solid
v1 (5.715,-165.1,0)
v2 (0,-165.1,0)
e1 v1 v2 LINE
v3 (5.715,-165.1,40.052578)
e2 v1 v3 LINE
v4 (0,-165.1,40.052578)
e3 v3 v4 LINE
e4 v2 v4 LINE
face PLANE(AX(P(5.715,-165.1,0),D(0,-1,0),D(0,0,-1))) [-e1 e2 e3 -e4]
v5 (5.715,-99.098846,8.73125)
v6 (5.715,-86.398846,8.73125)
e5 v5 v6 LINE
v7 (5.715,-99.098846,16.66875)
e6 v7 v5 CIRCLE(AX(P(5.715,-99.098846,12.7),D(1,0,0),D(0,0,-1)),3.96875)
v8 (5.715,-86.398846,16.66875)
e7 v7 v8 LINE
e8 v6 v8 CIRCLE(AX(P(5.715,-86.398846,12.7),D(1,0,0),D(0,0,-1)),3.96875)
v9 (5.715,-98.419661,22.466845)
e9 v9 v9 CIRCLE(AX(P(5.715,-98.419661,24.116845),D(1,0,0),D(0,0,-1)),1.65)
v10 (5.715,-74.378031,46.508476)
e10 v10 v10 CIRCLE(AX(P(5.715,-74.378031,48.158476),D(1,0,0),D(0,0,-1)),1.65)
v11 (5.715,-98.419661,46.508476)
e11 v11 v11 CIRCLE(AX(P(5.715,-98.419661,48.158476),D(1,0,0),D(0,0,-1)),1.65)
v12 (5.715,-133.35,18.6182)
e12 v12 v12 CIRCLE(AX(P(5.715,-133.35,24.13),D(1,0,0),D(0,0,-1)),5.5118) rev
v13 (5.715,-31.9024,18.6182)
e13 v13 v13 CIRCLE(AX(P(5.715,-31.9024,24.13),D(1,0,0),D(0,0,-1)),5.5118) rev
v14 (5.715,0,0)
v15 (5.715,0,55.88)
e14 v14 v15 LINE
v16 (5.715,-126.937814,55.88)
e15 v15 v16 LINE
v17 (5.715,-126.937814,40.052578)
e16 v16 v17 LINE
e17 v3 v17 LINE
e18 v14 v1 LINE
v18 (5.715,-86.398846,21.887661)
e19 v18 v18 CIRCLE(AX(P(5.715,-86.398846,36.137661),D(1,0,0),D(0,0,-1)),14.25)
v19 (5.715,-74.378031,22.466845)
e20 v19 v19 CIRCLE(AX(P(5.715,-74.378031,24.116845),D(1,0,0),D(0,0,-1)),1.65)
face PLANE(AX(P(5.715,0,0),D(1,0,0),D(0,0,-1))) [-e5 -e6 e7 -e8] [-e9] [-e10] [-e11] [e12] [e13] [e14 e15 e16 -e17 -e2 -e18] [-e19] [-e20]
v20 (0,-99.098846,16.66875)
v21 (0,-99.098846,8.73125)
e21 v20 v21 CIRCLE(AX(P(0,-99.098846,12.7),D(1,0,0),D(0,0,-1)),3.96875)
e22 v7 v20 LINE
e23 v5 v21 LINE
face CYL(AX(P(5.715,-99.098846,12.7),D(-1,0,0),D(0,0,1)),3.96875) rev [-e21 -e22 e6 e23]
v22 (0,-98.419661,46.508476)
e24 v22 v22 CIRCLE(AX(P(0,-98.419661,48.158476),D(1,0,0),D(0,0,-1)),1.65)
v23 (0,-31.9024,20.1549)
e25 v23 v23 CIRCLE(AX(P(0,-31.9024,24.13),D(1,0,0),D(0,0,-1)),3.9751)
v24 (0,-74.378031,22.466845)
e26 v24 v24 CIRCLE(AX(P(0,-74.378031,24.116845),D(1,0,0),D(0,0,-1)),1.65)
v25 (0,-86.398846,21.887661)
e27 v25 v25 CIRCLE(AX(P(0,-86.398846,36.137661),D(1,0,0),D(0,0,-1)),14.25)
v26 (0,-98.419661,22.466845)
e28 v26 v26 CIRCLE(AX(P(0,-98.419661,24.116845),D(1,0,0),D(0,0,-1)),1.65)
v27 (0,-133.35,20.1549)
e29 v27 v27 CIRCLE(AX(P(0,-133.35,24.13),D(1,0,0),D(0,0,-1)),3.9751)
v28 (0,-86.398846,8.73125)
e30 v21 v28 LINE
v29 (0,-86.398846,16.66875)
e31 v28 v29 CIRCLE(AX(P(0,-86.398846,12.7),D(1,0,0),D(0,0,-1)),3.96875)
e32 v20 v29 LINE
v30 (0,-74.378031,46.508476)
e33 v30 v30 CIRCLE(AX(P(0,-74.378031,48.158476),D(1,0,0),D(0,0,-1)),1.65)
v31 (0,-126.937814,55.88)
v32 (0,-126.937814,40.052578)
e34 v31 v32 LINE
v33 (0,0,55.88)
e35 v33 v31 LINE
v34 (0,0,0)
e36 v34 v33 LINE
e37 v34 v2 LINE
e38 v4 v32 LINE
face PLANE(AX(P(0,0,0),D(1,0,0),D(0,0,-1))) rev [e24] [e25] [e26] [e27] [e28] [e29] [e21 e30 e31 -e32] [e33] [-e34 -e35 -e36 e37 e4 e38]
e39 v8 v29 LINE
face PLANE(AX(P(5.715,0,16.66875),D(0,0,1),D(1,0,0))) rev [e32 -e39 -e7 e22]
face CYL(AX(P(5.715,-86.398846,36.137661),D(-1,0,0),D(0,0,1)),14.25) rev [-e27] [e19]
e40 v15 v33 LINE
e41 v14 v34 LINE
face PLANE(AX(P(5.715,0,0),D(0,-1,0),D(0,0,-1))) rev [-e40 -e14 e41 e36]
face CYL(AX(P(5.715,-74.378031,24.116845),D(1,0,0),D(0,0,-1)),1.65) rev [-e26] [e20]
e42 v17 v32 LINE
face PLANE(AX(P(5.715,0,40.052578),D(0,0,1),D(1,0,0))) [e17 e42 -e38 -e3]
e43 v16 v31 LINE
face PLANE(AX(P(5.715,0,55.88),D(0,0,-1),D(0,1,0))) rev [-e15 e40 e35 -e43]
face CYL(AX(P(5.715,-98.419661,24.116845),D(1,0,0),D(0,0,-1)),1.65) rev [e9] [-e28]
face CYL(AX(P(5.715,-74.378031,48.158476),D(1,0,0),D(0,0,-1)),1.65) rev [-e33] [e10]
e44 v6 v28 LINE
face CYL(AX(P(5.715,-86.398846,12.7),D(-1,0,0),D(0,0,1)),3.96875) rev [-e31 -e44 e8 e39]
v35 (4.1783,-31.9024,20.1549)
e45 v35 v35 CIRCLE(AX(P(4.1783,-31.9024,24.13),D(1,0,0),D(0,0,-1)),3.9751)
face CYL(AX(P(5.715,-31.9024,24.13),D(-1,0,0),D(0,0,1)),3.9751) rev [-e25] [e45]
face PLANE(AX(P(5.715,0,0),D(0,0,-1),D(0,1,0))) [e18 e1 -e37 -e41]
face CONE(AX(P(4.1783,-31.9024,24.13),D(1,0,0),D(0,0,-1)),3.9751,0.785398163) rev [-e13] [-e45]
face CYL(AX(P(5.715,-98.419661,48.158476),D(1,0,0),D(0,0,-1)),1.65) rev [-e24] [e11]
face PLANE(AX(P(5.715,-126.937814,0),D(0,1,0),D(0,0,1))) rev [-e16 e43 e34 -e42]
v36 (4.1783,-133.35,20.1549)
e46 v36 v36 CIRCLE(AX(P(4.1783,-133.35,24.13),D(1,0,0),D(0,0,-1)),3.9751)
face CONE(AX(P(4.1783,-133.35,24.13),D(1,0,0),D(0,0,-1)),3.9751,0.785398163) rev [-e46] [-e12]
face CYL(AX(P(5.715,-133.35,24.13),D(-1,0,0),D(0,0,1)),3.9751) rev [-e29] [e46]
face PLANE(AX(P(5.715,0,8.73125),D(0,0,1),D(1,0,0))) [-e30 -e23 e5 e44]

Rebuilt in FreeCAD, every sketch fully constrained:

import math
import FreeCAD as App
import Part
import Sketcher
Q = App.Units.Quantity


def edges_at(feature, points):
    """Names of the edges that pass closest to the given points."""
    edges = feature.Shape.Edges
    near = lambda p: min(range(len(edges)), key=lambda i: edges[i].distToShape(Part.Vertex(*p))[0])
    return sorted({f"Edge{near(p) + 1}" for p in points})


def add_polygon(sketch, points):
    """Adds a closed chain of lines whose ends are joined by coincident constraints."""
    first, n = sketch.GeometryCount, len(points)
    for a, b in zip(points, points[1:] + points[:1]):
        sketch.addGeometry(Part.LineSegment(App.Vector(*a, 0), App.Vector(*b, 0)), False)
    for i in range(n):
        sketch.addConstraint(Sketcher.Constraint("Coincident", first + i, 2, first + (i + 1) % n, 1))

doc = App.newDocument("Part")
body = doc.addObject("PartDesign::Body", "Body")

# Sketch on YZ plane
sketch1 = body.newObject("Sketcher::SketchObject", "Sketch")
sketch1.AttachmentSupport = (doc.getObject("YZ_Plane"), [""])
sketch1.MapMode = "FlatFace"
add_polygon(sketch1, [(-165.1, 0), (0, 0), (0, 55.9), (-126.9, 55.9), (-126.9, 40.1), (-165.1, 40.1)])  # lines 0-5
sketch1.addGeometry(Part.LineSegment(App.Vector(-86.4, 8.7, 0), App.Vector(-99.1, 8.7, 0)), False)  # 6
sketch1.addGeometry(Part.ArcOfCircle(Part.Circle(App.Vector(-99.1, 12.7, 0), App.Vector(0, 0, 1), 4), math.radians(90), math.radians(270)), False)  # 7
sketch1.addGeometry(Part.LineSegment(App.Vector(-99.1, 16.7, 0), App.Vector(-86.4, 16.7, 0)), False)  # 8
sketch1.addGeometry(Part.ArcOfCircle(Part.Circle(App.Vector(-86.4, 12.7, 0), App.Vector(0, 0, 1), 4), math.radians(-90), math.radians(90)), False)  # 9
sketch1.addGeometry(Part.Circle(App.Vector(-133.3, 24.1, 0), App.Vector(0, 0, 1), 4), False)  # 10
sketch1.addGeometry(Part.Circle(App.Vector(-31.9, 24.1, 0), App.Vector(0, 0, 1), 4), False)  # 11
sketch1.addGeometry(Part.Circle(App.Vector(-86.4, 36.1, 0), App.Vector(0, 0, 1), 14.2), False)  # 12
sketch1.addConstraint([
    Sketcher.Constraint("Tangent", 6, 2, 7, 2),
    Sketcher.Constraint("Tangent", 7, 1, 8, 1),
    Sketcher.Constraint("Tangent", 8, 2, 9, 2),
    Sketcher.Constraint("Tangent", 9, 1, 6, 1),
    Sketcher.Constraint("Horizontal", 0),
    Sketcher.Constraint("Vertical", 1),
    Sketcher.Constraint("Horizontal", 2),
    Sketcher.Constraint("Vertical", 3),
    Sketcher.Constraint("Horizontal", 4),
    Sketcher.Constraint("Vertical", 5),
    Sketcher.Constraint("Horizontal", 6),
    Sketcher.Constraint("Horizontal", 8),
    Sketcher.Constraint("Coincident", 0, 2, -1, 1),
    Sketcher.Constraint("Equal", 10, 11),
    Sketcher.Constraint("Horizontal", 10, 3, 11, 3),
    Sketcher.Constraint("Vertical", 9, 3, 12, 3),
    Sketcher.Constraint("Diameter", 10, Q("0.313 in")),
    Sketcher.Constraint("DistanceX", 0, 1, 0, 2, Q("6.5 in")),
    Sketcher.Constraint("DistanceX", 6, 2, 6, 1, Q("0.5 in")),
    Sketcher.Constraint("DistanceY", 1, 1, 1, 2, Q("2.2 in")),
    Sketcher.Constraint("Radius", 7, Q("0.15625 in")),
    Sketcher.Constraint("DistanceY", -1, 1, 7, 3, Q("0.5 in")),
    Sketcher.Constraint("Diameter", 12, 28.5),
    Sketcher.Constraint("DistanceX", 10, 3, -1, 1, Q("5.25 in")),
    Sketcher.Constraint("DistanceY", -1, 1, 10, 3, Q("0.95 in")),
    Sketcher.Constraint("DistanceX", 11, 3, -1, 1, Q("1.256 in")),
    Sketcher.Constraint("DistanceY", 3, 2, 3, 1, 15.827422),
    Sketcher.Constraint("DistanceX", 2, 2, 2, 1, 126.937814),
    Sketcher.Constraint("DistanceY", -1, 1, 12, 3, 36.137661),
    Sketcher.Constraint("DistanceX", 2, 2, 12, 3, 40.538968),
])
pad1 = body.newObject("PartDesign::Pad", "Pad")
pad1.Profile = sketch1
pad1.Length = Q("0.225 in")

# Sketch on YZ plane
sketch2 = body.newObject("Sketcher::SketchObject", "Sketch001")
sketch2.AttachmentSupport = (doc.getObject("YZ_Plane"), [""])
sketch2.MapMode = "FlatFace"
sketch2.AttachmentOffset = App.Placement(App.Vector(0, 0, 0.225 * 25.4), App.Rotation())
sketch2.addGeometry([
    Part.Circle(App.Vector(-74.4, 48.2, 0), App.Vector(0, 0, 1), 1.6),
    Part.Circle(App.Vector(-74.4, 24.1, 0), App.Vector(0, 0, 1), 1.6),
    Part.Circle(App.Vector(-98.4, 24.1, 0), App.Vector(0, 0, 1), 1.6),
    Part.Circle(App.Vector(-98.4, 48.2, 0), App.Vector(0, 0, 1), 1.6),
], False)
sketch2.addConstraint([
    Sketcher.Constraint("Equal", 0, 1),
    Sketcher.Constraint("Equal", 1, 2),
    Sketcher.Constraint("Equal", 2, 3),
    Sketcher.Constraint("Horizontal", 1, 3, 2, 3),
    Sketcher.Constraint("Horizontal", 0, 3, 3, 3),
    Sketcher.Constraint("Vertical", 0, 3, 1, 3),
    Sketcher.Constraint("Vertical", 2, 3, 3, 3),
    Sketcher.Constraint("Diameter", 0, 3.3),
    Sketcher.Constraint("DistanceX", 0, 3, -1, 1, 74.378031),
    Sketcher.Constraint("DistanceX", 2, 3, -1, 1, 98.419661),
    Sketcher.Constraint("DistanceY", 1, 3, 0, 3, 24.041631),
    Sketcher.Constraint("DistanceY", -1, 1, 0, 3, 48.158476),
])
doc.recompute()
hole = body.newObject("PartDesign::Hole", "Hole")
hole.Profile = sketch2
hole.ThreadType = "None"
hole.Diameter = 3.3
hole.DepthType = "ThroughAll"
doc.recompute()

chamfer = body.newObject("PartDesign::Chamfer", "Chamfer")
chamfer.Base = (hole, edges_at(hole, [(5.715, -31.902, 28.105), (5.715, -133.35, 28.105)]))
chamfer.Size = Q("0.0605 in")

doc.recompute()
